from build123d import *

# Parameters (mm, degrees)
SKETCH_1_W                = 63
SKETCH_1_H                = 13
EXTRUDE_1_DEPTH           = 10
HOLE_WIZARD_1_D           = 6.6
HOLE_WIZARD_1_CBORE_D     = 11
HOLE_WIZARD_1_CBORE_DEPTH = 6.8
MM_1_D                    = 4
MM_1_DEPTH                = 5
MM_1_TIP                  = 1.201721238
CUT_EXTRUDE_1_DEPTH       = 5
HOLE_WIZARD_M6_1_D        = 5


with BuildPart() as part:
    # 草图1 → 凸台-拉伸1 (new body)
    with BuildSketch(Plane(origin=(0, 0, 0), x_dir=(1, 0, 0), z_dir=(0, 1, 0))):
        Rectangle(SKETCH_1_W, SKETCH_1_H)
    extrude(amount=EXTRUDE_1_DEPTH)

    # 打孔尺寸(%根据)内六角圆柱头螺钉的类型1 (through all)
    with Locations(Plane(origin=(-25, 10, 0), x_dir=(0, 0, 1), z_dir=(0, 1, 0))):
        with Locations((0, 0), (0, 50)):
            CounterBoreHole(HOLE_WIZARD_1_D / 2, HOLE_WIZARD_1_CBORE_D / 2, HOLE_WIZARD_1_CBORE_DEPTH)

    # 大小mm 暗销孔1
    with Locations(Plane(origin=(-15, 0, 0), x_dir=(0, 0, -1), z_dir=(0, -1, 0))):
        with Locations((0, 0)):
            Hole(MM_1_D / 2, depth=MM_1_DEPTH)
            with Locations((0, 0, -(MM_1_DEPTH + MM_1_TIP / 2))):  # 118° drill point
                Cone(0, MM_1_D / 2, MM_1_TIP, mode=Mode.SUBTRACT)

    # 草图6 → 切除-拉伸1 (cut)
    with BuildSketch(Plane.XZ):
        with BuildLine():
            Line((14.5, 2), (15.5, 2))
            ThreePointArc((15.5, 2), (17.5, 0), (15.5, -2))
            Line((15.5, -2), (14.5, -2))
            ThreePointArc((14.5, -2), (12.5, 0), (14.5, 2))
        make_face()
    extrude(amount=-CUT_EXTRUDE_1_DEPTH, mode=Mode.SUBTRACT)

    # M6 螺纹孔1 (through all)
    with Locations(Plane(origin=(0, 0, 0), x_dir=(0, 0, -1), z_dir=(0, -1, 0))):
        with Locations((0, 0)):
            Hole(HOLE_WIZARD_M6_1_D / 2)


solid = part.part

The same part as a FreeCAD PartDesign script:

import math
import FreeCAD as App
import Part
import Sketcher

V = App.Vector
Q = App.Units.Quantity


def add_polygon(sketch, points):
    """Adds a closed chain of lines whose ends are joined by coincident constraints."""
    first, n = sketch.GeometryCount, len(points)
    for a, b in zip(points, points[1:] + points[:1]):
        sketch.addGeometry(Part.LineSegment(App.Vector(*a, 0), App.Vector(*b, 0)), False)
    for i in range(n):
        sketch.addConstraint(Sketcher.Constraint("Coincident", first + i, 2, first + (i + 1) % n, 1))

doc = App.newDocument("Part")
body = doc.addObject("PartDesign::Body", "Body")

# Sketch on XZ plane
sketch1 = doc.addObject("Sketcher::SketchObject", "Sketch")
body.addObject(sketch1)
sketch1.AttachmentSupport = (doc.XZ_Plane, [""])
sketch1.MapMode = "FlatFace"
add_polygon(sketch1, [(-32, -6), (-32, 6), (32, 6), (32, -6)])  # lines 0-3
sketch1.addConstraint([
    Sketcher.Constraint("Vertical", 0),
    Sketcher.Constraint("Horizontal", 1),
    Sketcher.Constraint("Vertical", 2),
    Sketcher.Constraint("Horizontal", 3),
    Sketcher.Constraint("Symmetric", 0, 2, 2, 2, -1, 1),
    Sketcher.Constraint("DistanceX", 1, 1, 1, 2, Q("63 mm")),
    Sketcher.Constraint("DistanceY", 0, 1, 0, 2, Q("13 mm")),
])
pad1 = doc.addObject("PartDesign::Pad", "Pad")
body.addObject(pad1)
pad1.Profile = sketch1
pad1.Length = 10
pad1.Reversed = True

# Sketch on XZ plane
sketch2 = doc.addObject("Sketcher::SketchObject", "Sketch001")
body.addObject(sketch2)
sketch2.AttachmentSupport = (doc.XZ_Plane, [""])
sketch2.MapMode = "FlatFace"
sketch2.AttachmentOffset = App.Placement(V(0, 0, -10), App.Rotation())
sketch2.addGeometry([
    Part.Circle(V(-25, 0, 0), V(0, 0, 1), 3.3),
    Part.Circle(V(25, 0, 0), V(0, 0, 1), 3.3),
], False)
sketch2.addConstraint([
    Sketcher.Constraint("Equal", 0, 1),
    Sketcher.Constraint("Symmetric", 0, 3, 1, 3, -1, 1),
    Sketcher.Constraint("PointOnObject", 0, 3, -1),
    Sketcher.Constraint("Diameter", 0, Q("6.6 mm")),
    Sketcher.Constraint("DistanceX", 0, 3, -1, 1, Q("25 mm")),
])
doc.recompute()
hole = doc.addObject("PartDesign::Hole", "Hole")
body.addObject(hole)
hole.Profile = sketch2
hole.ThreadType = "None"
hole.Diameter = 6.6
hole.DepthType = "ThroughAll"
hole.HoleCutType = "Counterbore"
hole.HoleCutDiameter = 11
hole.HoleCutDepth = 6.8
hole.Reversed = True

# Sketch on XZ plane
sketch3 = doc.addObject("Sketcher::SketchObject", "Sketch002")
body.addObject(sketch3)
sketch3.AttachmentSupport = (doc.XZ_Plane, [""])
sketch3.MapMode = "FlatFace"
sketch3.addGeometry(Part.Circle(V(-15, 0, 0), V(0, 0, 1), 2), False)
sketch3.addConstraint([
    Sketcher.Constraint("PointOnObject", 0, 3, -1),
    Sketcher.Constraint("Diameter", 0, Q("4 mm")),
    Sketcher.Constraint("DistanceX", 0, 3, -1, 1, Q("15 mm")),
])
doc.recompute()
hole2 = doc.addObject("PartDesign::Hole", "Hole001")
body.addObject(hole2)
hole2.Profile = sketch3
hole2.ThreadType = "None"
hole2.Diameter = 4
hole2.DepthType = "Dimension"
hole2.Depth = 5
hole2.DrillPoint = "Angled"
hole2.DrillPointAngle = 118

# Sketch on XZ plane
sketch4 = doc.addObject("Sketcher::SketchObject", "Sketch003")
body.addObject(sketch4)
sketch4.AttachmentSupport = (doc.XZ_Plane, [""])
sketch4.MapMode = "FlatFace"
sketch4.addGeometry([
    Part.LineSegment(V(15.5, 2, 0), V(14.5, 2, 0)),
    Part.ArcOfCircle(Part.Circle(V(14.5, 0, 0), V(0, 0, 1), 2), math.radians(90), math.radians(270)),
    Part.LineSegment(V(14.5, -2, 0), V(15.5, -2, 0)),
    Part.ArcOfCircle(Part.Circle(V(15.5, 0, 0), V(0, 0, 1), 2), math.radians(-90), math.radians(90)),
], False)
sketch4.addConstraint([
    Sketcher.Constraint("Tangent", 0, 2, 1, 1),
    Sketcher.Constraint("Tangent", 1, 2, 2, 1),
    Sketcher.Constraint("Tangent", 2, 2, 3, 1),
    Sketcher.Constraint("Tangent", 3, 2, 0, 1),
    Sketcher.Constraint("Horizontal", 0),
    Sketcher.Constraint("Horizontal", 2),
    Sketcher.Constraint("PointOnObject", 1, 3, -1),
    Sketcher.Constraint("Radius", 1, Q("2 mm")),
    Sketcher.Constraint("DistanceX", 0, 2, 0, 1, Q("1 mm")),
    Sketcher.Constraint("DistanceX", -1, 1, 1, 3, Q("14.5 mm")),
])
pocket1 = doc.addObject("PartDesign::Pocket", "Pocket")
body.addObject(pocket1)
pocket1.Profile = sketch4
pocket1.Length = 5

# Sketch on XZ plane
sketch5 = doc.addObject("Sketcher::SketchObject", "Sketch004")
body.addObject(sketch5)
sketch5.AttachmentSupport = (doc.XZ_Plane, [""])
sketch5.MapMode = "FlatFace"
sketch5.addGeometry(Part.Circle(V(0, 0, 0), V(0, 0, 1), 2.5), False)
sketch5.addConstraint([
    Sketcher.Constraint("Coincident", 0, 3, -1, 1),
    Sketcher.Constraint("Diameter", 0, Q("5 mm")),
])
doc.recompute()
hole3 = doc.addObject("PartDesign::Hole", "Hole002")
body.addObject(hole3)
hole3.Profile = sketch5
hole3.ThreadType = "None"
hole3.Diameter = 5
hole3.DepthType = "ThroughAll"

doc.recompute()
